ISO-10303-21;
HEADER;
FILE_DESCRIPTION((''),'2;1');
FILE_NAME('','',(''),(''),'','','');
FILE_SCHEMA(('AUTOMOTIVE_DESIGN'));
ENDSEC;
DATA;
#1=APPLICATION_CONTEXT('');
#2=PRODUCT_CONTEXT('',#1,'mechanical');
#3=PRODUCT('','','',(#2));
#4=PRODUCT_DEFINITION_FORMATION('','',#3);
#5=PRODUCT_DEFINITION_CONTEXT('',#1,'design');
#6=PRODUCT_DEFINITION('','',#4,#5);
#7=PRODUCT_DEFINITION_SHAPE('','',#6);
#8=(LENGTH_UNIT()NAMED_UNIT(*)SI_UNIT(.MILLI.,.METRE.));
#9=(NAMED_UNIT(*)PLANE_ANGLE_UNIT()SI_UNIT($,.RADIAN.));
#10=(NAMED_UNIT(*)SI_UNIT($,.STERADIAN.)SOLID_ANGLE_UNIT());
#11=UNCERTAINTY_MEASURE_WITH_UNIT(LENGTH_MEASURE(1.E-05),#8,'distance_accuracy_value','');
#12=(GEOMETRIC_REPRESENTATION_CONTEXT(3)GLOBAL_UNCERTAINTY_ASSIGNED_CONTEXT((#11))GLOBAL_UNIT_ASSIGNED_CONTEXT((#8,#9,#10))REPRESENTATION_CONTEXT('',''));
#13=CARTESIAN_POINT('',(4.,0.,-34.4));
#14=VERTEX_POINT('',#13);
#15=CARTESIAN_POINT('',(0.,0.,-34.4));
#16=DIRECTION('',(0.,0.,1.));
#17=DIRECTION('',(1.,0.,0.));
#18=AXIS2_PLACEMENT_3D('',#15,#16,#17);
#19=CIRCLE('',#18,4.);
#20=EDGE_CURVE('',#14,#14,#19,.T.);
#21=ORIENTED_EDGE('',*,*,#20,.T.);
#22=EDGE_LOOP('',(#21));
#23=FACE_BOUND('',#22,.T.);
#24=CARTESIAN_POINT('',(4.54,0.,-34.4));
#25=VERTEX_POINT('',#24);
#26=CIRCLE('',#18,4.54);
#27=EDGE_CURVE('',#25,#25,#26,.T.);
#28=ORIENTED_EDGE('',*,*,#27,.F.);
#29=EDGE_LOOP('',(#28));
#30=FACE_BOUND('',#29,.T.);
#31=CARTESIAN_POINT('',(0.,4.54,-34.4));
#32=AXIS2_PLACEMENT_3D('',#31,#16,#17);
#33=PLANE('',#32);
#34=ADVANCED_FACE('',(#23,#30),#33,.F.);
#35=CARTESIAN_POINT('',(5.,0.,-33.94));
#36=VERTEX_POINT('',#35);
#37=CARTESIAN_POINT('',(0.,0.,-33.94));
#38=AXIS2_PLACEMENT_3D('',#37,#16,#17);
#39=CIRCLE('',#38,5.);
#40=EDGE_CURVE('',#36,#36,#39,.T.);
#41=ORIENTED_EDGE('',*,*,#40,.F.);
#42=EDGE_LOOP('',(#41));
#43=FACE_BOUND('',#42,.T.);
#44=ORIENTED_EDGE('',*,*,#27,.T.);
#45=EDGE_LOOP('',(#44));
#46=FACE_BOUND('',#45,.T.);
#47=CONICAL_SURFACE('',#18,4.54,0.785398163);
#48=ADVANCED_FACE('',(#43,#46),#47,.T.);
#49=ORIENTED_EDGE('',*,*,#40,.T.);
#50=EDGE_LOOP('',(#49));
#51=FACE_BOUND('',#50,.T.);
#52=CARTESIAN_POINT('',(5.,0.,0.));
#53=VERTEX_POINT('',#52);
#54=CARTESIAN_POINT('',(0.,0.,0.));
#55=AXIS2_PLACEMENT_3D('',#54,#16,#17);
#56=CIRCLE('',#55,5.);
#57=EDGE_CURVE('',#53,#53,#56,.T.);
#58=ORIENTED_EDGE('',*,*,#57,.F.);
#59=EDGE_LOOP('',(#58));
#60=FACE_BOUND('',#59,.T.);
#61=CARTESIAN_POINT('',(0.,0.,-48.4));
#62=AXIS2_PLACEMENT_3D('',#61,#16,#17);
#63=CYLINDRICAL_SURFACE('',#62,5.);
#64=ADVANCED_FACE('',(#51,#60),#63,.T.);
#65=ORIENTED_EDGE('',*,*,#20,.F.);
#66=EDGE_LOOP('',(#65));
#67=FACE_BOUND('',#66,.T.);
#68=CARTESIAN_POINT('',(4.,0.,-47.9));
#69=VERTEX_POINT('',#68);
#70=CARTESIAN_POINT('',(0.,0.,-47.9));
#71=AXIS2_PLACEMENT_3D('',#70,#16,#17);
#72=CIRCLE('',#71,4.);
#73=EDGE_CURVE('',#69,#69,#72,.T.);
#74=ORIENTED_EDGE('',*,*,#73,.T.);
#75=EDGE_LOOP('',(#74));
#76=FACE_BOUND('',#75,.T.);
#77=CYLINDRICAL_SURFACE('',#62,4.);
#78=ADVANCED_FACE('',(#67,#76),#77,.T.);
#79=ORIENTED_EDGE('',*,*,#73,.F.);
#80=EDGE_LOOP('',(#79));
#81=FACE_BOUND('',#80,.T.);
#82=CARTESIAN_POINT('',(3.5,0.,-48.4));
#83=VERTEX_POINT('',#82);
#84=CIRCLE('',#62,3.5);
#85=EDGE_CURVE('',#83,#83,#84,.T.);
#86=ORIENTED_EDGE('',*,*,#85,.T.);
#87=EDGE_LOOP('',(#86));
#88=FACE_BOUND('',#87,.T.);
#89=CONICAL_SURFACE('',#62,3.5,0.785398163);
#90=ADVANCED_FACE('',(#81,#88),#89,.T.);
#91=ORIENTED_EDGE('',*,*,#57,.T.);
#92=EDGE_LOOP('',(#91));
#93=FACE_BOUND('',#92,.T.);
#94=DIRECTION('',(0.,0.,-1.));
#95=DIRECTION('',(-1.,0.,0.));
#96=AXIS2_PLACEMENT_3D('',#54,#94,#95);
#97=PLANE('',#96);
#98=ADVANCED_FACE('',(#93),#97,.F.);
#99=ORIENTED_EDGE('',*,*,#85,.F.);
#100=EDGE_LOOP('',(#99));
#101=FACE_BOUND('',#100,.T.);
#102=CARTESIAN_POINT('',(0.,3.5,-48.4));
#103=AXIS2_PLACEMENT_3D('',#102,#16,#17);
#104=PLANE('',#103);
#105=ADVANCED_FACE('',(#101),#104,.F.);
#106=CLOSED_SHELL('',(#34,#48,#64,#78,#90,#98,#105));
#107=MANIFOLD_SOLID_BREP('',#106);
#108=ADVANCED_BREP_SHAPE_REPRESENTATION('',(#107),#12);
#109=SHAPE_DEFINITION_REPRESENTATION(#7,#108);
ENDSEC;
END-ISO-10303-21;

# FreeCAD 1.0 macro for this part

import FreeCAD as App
import Part
import Sketcher

V = App.Vector
Q = App.Units.Quantity

doc = App.newDocument("Part")
body = doc.addObject("PartDesign::Body", "Body")

# Sketch on YZ plane
sketch1 = body.newObject("Sketcher::SketchObject", "Sketch")
sketch1.AttachmentSupport = (doc.getObject("YZ_Plane"), [""])
sketch1.MapMode = "FlatFace"
sketch1.addGeometry([
    Part.LineSegment(V(5, 0, 0), V(0, 0, 0)),  # 0
    Part.LineSegment(V(0, 0, 0), V(0, -48.4, 0)),  # 1
    Part.LineSegment(V(0, -48.4, 0), V(3.5, -48.4, 0)),  # 2
    Part.LineSegment(V(3.5, -48.4, 0), V(4, -47.9, 0)),  # 3
    Part.LineSegment(V(4, -47.9, 0), V(4, -34.4, 0)),  # 4
    Part.LineSegment(V(4, -34.4, 0), V(4.5, -34.4, 0)),  # 5
    Part.LineSegment(V(4.5, -34.4, 0), V(5, -33.9, 0)),  # 6
    Part.LineSegment(V(5, -33.9, 0), V(5, 0, 0)),  # 7
], False)
sketch1.addConstraint([
    Sketcher.Constraint("Coincident", 0, 2, 1, 1),
    Sketcher.Constraint("Coincident", 1, 2, 2, 1),
    Sketcher.Constraint("Coincident", 2, 2, 3, 1),
    Sketcher.Constraint("Coincident", 3, 2, 4, 1),
    Sketcher.Constraint("Coincident", 4, 2, 5, 1),
    Sketcher.Constraint("Coincident", 5, 2, 6, 1),
    Sketcher.Constraint("Coincident", 6, 2, 7, 1),
    Sketcher.Constraint("Coincident", 7, 2, 0, 1),
    Sketcher.Constraint("Horizontal", 0),
    Sketcher.Constraint("Vertical", 1),
    Sketcher.Constraint("Horizontal", 2),
    Sketcher.Constraint("Vertical", 4),
    Sketcher.Constraint("Horizontal", 5),
    Sketcher.Constraint("Vertical", 7),
    Sketcher.Constraint("Coincident", 0, 2, -1, 1),
    Sketcher.Constraint("Parallel", 3, 6),
    Sketcher.Constraint("DistanceX", 0, 2, 0, 1, 5.0),
    Sketcher.Constraint("Angle", 3, Q("45 deg")),
    Sketcher.Constraint("DistanceX", 2, 1, 2, 2, 3.5),
    Sketcher.Constraint("DistanceY", 1, 2, 1, 1, 48.4),
    Sketcher.Constraint("DistanceY", 4, 1, 4, 2, 13.5),
    Sketcher.Constraint("DistanceX", -1, 1, 3, 2, 4.0),
    Sketcher.Constraint("DistanceX", 5, 1, 5, 2, 0.54),
])
revolution = body.newObject("PartDesign::Revolution", "Revolution")
revolution.Profile = sketch1
revolution.ReferenceAxis = (sketch1, ["V_Axis"])
revolution.Angle = 360

doc.recompute()
